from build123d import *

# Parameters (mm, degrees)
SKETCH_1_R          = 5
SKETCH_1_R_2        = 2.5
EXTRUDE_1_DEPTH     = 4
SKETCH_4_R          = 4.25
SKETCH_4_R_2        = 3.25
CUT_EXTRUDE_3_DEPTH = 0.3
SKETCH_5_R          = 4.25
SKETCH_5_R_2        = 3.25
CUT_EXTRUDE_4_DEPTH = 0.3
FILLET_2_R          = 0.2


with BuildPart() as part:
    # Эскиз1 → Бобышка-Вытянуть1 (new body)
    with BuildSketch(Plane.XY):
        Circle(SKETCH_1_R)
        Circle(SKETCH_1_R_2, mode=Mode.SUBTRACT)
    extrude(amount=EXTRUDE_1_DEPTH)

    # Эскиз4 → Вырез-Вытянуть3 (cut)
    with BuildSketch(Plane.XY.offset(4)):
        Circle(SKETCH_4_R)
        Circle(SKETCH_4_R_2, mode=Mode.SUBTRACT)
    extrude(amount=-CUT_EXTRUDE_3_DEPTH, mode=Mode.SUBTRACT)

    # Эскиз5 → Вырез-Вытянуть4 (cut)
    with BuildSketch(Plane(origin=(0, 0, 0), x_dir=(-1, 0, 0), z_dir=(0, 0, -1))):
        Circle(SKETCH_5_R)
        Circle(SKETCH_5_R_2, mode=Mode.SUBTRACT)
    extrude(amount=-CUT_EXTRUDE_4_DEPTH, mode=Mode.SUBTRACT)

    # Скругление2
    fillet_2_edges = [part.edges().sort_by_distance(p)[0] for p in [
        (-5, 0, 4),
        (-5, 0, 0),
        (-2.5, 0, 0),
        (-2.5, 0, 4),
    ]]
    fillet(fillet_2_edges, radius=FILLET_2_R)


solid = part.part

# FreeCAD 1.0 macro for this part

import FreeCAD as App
import Part
import Sketcher
from FreeCAD import Vector


def edges_at(feature, points):
    """Names of the edges that pass closest to the given points."""
    edges = feature.Shape.Edges
    near = lambda p: min(range(len(edges)), key=lambda i: edges[i].distToShape(Part.Vertex(*p))[0])
    return sorted({f"Edge{near(p) + 1}" for p in points})

doc = App.newDocument("Part")
body = doc.addObject("PartDesign::Body", "Body")

sketch1 = body.newObject("Sketcher::SketchObject", "Sketch")
sketch1.AttachmentSupport = (doc.getObject("XY_Plane"), [""])
sketch1.MapMode = "FlatFace"
sketch1.addGeometry([
    Part.Circle(Vector(0, 0, 0), Vector(0, 0, 1), 5),
    Part.Circle(Vector(0, 0, 0), Vector(0, 0, 1), 2.5),
], False)
sketch1.addConstraint([
    Sketcher.Constraint("Coincident", 0, 3, -1, 1),
    Sketcher.Constraint("Coincident", 1, 3, -1, 1),
    Sketcher.Constraint("Diameter", 0, 10.0),
    Sketcher.Constraint("Diameter", 1, 5.0),
])
pad1 = body.newObject("PartDesign::Pad", "Pad")
pad1.Profile = sketch1
pad1.Length = 4

sketch2 = body.newObject("Sketcher::SketchObject", "Sketch001")
sketch2.AttachmentSupport = (doc.getObject("XY_Plane"), [""])
sketch2.MapMode = "FlatFace"
sketch2.AttachmentOffset = App.Placement(Vector(0, 0, 4), App.Rotation())
sketch2.addGeometry([
    Part.Circle(Vector(0, 0, 0), Vector(0, 0, 1), 4.2),
    Part.Circle(Vector(0, 0, 0), Vector(0, 0, 1), 3.2),
], False)
sketch2.addConstraint([
    Sketcher.Constraint("Coincident", 0, 3, -1, 1),
    Sketcher.Constraint("Coincident", 1, 3, -1, 1),
    Sketcher.Constraint("Diameter", 0, 8.5),
    Sketcher.Constraint("Diameter", 1, 6.5),
])
pocket1 = body.newObject("PartDesign::Pocket", "Pocket")
pocket1.Profile = sketch2
pocket1.Length = 0.3

sketch3 = body.newObject("Sketcher::SketchObject", "Sketch002")
sketch3.AttachmentSupport = (doc.getObject("XY_Plane"), [""])
sketch3.MapMode = "FlatFace"
sketch3.addGeometry([
    Part.Circle(Vector(0, 0, 0), Vector(0, 0, 1), 4.2),
    Part.Circle(Vector(0, 0, 0), Vector(0, 0, 1), 3.2),
], False)
sketch3.addConstraint([
    Sketcher.Constraint("Coincident", 0, 3, -1, 1),
    Sketcher.Constraint("Coincident", 1, 3, -1, 1),
    Sketcher.Constraint("Diameter", 0, 8.5),
    Sketcher.Constraint("Diameter", 1, 6.5),
])
pocket2 = body.newObject("PartDesign::Pocket", "Pocket001")
pocket2.Profile = sketch3
pocket2.Length = 0.3
pocket2.Reversed = True
doc.recompute()

fillet = body.newObject("PartDesign::Fillet", "Fillet")
fillet.Base = (pocket2, edges_at(pocket2, [
    (-5, 0, 4),
    (-5, 0, 0),
    (-2.5, 0, 0),
    (-2.5, 0, 4),
]))
fillet.Radius = 0.2

doc.recompute()
